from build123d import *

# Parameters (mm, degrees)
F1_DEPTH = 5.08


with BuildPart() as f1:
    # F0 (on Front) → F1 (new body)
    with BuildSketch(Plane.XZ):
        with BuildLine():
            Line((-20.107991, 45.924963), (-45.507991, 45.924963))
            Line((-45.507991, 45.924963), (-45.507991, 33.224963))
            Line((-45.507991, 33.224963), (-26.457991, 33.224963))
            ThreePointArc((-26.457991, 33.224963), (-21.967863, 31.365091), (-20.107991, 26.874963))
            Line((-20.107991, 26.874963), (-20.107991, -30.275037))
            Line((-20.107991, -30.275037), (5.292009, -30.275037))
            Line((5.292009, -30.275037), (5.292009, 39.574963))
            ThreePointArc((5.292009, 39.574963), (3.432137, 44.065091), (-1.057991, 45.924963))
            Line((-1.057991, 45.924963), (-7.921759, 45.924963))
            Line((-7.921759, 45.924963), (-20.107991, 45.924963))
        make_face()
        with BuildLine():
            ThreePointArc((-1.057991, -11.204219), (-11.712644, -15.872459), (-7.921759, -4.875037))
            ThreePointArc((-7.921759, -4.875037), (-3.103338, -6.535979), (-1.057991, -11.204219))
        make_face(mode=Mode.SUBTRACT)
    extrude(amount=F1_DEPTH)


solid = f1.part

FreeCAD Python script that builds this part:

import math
import FreeCAD as App
import Part
import Sketcher
Q = App.Units.Quantity

doc = App.newDocument("Part")
body = doc.addObject("PartDesign::Body", "Body")

# Sketch on XZ plane
sketch1 = body.newObject("Sketcher::SketchObject", "Sketch")
sketch1.AttachmentSupport = (doc.getObject("XZ_Plane"), [""])
sketch1.MapMode = "FlatFace"
sketch1.addGeometry(Part.LineSegment(App.Vector(-45.507991, 45.924963, 0), App.Vector(-45.507991, 33.224963, 0)), False)
sketch1.addGeometry(Part.LineSegment(App.Vector(-45.507991, 33.224963, 0), App.Vector(-26.457991, 33.224963, 0)), False)
sketch1.addGeometry(Part.ArcOfCircle(Part.Circle(App.Vector(-26.457991, 26.874963, 0), App.Vector(0, 0, 1), 6.35), math.radians(0.000002), math.radians(89.999998)), False)
sketch1.addGeometry(Part.LineSegment(App.Vector(-20.107991, 26.874963, 0), App.Vector(-20.107991, -30.275037, 0)), False)
sketch1.addGeometry(Part.LineSegment(App.Vector(-20.107991, -30.275037, 0), App.Vector(5.292009, -30.275037, 0)), False)
sketch1.addGeometry(Part.LineSegment(App.Vector(5.292009, -30.275037, 0), App.Vector(5.292009, 39.574963, 0)), False)
sketch1.addGeometry(Part.ArcOfCircle(Part.Circle(App.Vector(-1.057991, 39.574963, 0), App.Vector(0, 0, 1), 6.35), math.radians(0.000002), math.radians(89.999998)), False)
sketch1.addGeometry(Part.LineSegment(App.Vector(-1.057991, 45.924963, 0), App.Vector(-45.507991, 45.924963, 0)), False)
sketch1.addGeometry(Part.ArcOfCircle(Part.Circle(App.Vector(-7.407991, -11.204219, 0), App.Vector(0, 0, 1), 6.35), math.radians(-0.000002), math.radians(94.64078)), False)
sketch1.addGeometry(Part.ArcOfCircle(Part.Circle(App.Vector(-7.407991, -11.204219, 0), App.Vector(0, 0, 1), 6.35), math.radians(94.640778), math.radians(360)), False)
sketch1.addConstraint(Sketcher.Constraint("Coincident", 0, 2, 1, 1))
sketch1.addConstraint(Sketcher.Constraint("Tangent", 1, 2, 2, 2))
sketch1.addConstraint(Sketcher.Constraint("Tangent", 2, 1, 3, 1))
sketch1.addConstraint(Sketcher.Constraint("Coincident", 3, 2, 4, 1))
sketch1.addConstraint(Sketcher.Constraint("Coincident", 4, 2, 5, 1))
sketch1.addConstraint(Sketcher.Constraint("Tangent", 5, 2, 6, 1))
sketch1.addConstraint(Sketcher.Constraint("Tangent", 6, 2, 7, 1))
sketch1.addConstraint(Sketcher.Constraint("Coincident", 7, 2, 0, 1))
sketch1.addConstraint(Sketcher.Constraint("Tangent", 8, 1, 9, 2))
sketch1.addConstraint(Sketcher.Constraint("Coincident", 9, 1, 8, 2))
sketch1.addConstraint(Sketcher.Constraint("Vertical", 0))
sketch1.addConstraint(Sketcher.Constraint("Horizontal", 1))
sketch1.addConstraint(Sketcher.Constraint("Vertical", 3))
sketch1.addConstraint(Sketcher.Constraint("Horizontal", 4))
sketch1.addConstraint(Sketcher.Constraint("Vertical", 5))
sketch1.addConstraint(Sketcher.Constraint("Horizontal", 7))
sketch1.addConstraint(Sketcher.Constraint("Equal", 2, 6))
sketch1.addConstraint(Sketcher.Constraint("Equal", 6, 8))
sketch1.addConstraint(Sketcher.Constraint("Horizontal", 9, 3, 8, 1))
sketch1.addConstraint(Sketcher.Constraint("Vertical", 6, 2, 8, 1))
sketch1.addConstraint(Sketcher.Constraint("DistanceX", 4, 1, 4, 2, Q("1 in")))
sketch1.addConstraint(Sketcher.Constraint("Radius", 2, Q("0.25 in")))
sketch1.addConstraint(Sketcher.Constraint("DistanceY", 0, 2, 0, 1, Q("0.5 in")))
sketch1.addConstraint(Sketcher.Constraint("DistanceX", 0, 2, 2, 1, Q("1 in")))
sketch1.addConstraint(Sketcher.Constraint("DistanceY", 3, 2, 9, 1, Q("1 in")))
sketch1.addConstraint(Sketcher.Constraint("DistanceY", 3, 2, 3, 1, Q("2.25 in")))
sketch1.addConstraint(Sketcher.Constraint("DistanceX", 2, 3, -1, 1, Q("26.457991 mm")))
sketch1.addConstraint(Sketcher.Constraint("DistanceY", 8, 3, -1, 1, Q("11.204219 mm")))
sketch1.addConstraint(Sketcher.Constraint("DistanceX", 9, 1, -1, 1, Q("7.921759 mm")))
pad1 = body.newObject("PartDesign::Pad", "Pad")
pad1.Profile = sketch1
pad1.Length = Q("0.2 in")

doc.recompute()
